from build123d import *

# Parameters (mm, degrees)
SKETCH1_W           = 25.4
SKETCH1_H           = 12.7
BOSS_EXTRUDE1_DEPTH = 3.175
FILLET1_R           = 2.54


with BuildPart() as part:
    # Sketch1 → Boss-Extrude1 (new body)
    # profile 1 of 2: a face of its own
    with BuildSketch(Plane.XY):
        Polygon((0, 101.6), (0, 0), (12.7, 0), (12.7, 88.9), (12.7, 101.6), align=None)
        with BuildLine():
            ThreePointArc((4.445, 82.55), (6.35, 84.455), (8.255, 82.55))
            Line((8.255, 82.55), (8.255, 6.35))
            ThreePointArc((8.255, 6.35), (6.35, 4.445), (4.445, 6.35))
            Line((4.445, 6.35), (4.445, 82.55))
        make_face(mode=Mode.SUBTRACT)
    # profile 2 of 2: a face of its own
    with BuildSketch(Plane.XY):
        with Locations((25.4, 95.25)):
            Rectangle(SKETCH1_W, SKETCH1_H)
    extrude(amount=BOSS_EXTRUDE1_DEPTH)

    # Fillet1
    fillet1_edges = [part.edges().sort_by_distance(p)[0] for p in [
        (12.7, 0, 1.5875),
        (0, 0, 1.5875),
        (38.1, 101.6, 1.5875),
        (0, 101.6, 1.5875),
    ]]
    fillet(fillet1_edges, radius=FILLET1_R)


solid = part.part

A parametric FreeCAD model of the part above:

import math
import FreeCAD as App
import Part
import Sketcher
from FreeCAD import Vector
Q = App.Units.Quantity


def edges_at(feature, points):
    """Names of the edges that pass closest to the given points."""
    edges = feature.Shape.Edges
    near = lambda p: min(range(len(edges)), key=lambda i: edges[i].distToShape(Part.Vertex(*p))[0])
    return sorted({f"Edge{near(p) + 1}" for p in points})


def add_polygon(sketch, points):
    """Adds a closed chain of lines whose ends are joined by coincident constraints."""
    first, n = sketch.GeometryCount, len(points)
    for a, b in zip(points, points[1:] + points[:1]):
        sketch.addGeometry(Part.LineSegment(App.Vector(*a, 0), App.Vector(*b, 0)), False)
    for i in range(n):
        sketch.addConstraint(Sketcher.Constraint("Coincident", first + i, 2, first + (i + 1) % n, 1))

doc = App.newDocument("Part")
body = doc.addObject("PartDesign::Body", "Body")

# Sketch on XY plane
sketch1 = body.newObject("Sketcher::SketchObject", "Sketch")
sketch1.AttachmentSupport = (doc.getObject("XY_Plane"), [""])
sketch1.MapMode = "FlatFace"
add_polygon(sketch1, [(0, 101.6), (0, 0), (12.7, 0), (12.7, 88.9), (38.1, 88.9), (38.1, 101.6)])  # lines 0-5
sketch1.addGeometry(Part.LineSegment(Vector(4.4, 6.3, 0), Vector(4.4, 82.5, 0)), False)  # 6
sketch1.addGeometry(Part.ArcOfCircle(Part.Circle(Vector(6.3, 82.5, 0), Vector(0, 0, 1), 1.9), math.radians(0), math.radians(180)), False)  # 7
sketch1.addGeometry(Part.LineSegment(Vector(8.3, 82.5, 0), Vector(8.3, 6.3, 0)), False)  # 8
sketch1.addGeometry(Part.ArcOfCircle(Part.Circle(Vector(6.3, 6.3, 0), Vector(0, 0, 1), 1.9), math.radians(180), math.radians(360)), False)  # 9
sketch1.addConstraint(Sketcher.Constraint("Tangent", 6, 2, 7, 2))
sketch1.addConstraint(Sketcher.Constraint("Tangent", 7, 1, 8, 1))
sketch1.addConstraint(Sketcher.Constraint("Tangent", 8, 2, 9, 2))
sketch1.addConstraint(Sketcher.Constraint("Tangent", 9, 1, 6, 1))
sketch1.addConstraint(Sketcher.Constraint("Vertical", 0))
sketch1.addConstraint(Sketcher.Constraint("Horizontal", 1))
sketch1.addConstraint(Sketcher.Constraint("Vertical", 2))
sketch1.addConstraint(Sketcher.Constraint("Horizontal", 3))
sketch1.addConstraint(Sketcher.Constraint("Vertical", 4))
sketch1.addConstraint(Sketcher.Constraint("Horizontal", 5))
sketch1.addConstraint(Sketcher.Constraint("Vertical", 6))
sketch1.addConstraint(Sketcher.Constraint("Vertical", 8))
sketch1.addConstraint(Sketcher.Constraint("Coincident", 0, 2, -1, 1))
sketch1.addConstraint(Sketcher.Constraint("Equal", 1, 4))
sketch1.addConstraint(Sketcher.Constraint("DistanceX", 3, 1, 3, 2, Q("1 in")))
sketch1.addConstraint(Sketcher.Constraint("DistanceY", 0, 2, 0, 1, Q("4 in")))
sketch1.addConstraint(Sketcher.Constraint("DistanceY", 6, 1, 6, 2, Q("3 in")))
sketch1.addConstraint(Sketcher.Constraint("DistanceX", 1, 1, 1, 2, Q("0.5 in")))
sketch1.addConstraint(Sketcher.Constraint("Radius", 7, Q("0.075 in")))
sketch1.addConstraint(Sketcher.Constraint("DistanceX", -1, 1, 7, 3, Q("0.25 in")))
sketch1.addConstraint(Sketcher.Constraint("DistanceY", -1, 1, 7, 3, Q("3.25 in")))
pad1 = body.newObject("PartDesign::Pad", "Pad")
pad1.Profile = sketch1
pad1.Length = Q("0.125 in")
doc.recompute()

fillet = body.newObject("PartDesign::Fillet", "Fillet")
fillet.Base = (pad1, edges_at(pad1, [
    (12.7, 0, 1.587),
    (0, 0, 1.587),
    (38.1, 101.6, 1.587),
    (0, 101.6, 1.587),
]))
fillet.Radius = Q("0.1 in")

doc.recompute()
